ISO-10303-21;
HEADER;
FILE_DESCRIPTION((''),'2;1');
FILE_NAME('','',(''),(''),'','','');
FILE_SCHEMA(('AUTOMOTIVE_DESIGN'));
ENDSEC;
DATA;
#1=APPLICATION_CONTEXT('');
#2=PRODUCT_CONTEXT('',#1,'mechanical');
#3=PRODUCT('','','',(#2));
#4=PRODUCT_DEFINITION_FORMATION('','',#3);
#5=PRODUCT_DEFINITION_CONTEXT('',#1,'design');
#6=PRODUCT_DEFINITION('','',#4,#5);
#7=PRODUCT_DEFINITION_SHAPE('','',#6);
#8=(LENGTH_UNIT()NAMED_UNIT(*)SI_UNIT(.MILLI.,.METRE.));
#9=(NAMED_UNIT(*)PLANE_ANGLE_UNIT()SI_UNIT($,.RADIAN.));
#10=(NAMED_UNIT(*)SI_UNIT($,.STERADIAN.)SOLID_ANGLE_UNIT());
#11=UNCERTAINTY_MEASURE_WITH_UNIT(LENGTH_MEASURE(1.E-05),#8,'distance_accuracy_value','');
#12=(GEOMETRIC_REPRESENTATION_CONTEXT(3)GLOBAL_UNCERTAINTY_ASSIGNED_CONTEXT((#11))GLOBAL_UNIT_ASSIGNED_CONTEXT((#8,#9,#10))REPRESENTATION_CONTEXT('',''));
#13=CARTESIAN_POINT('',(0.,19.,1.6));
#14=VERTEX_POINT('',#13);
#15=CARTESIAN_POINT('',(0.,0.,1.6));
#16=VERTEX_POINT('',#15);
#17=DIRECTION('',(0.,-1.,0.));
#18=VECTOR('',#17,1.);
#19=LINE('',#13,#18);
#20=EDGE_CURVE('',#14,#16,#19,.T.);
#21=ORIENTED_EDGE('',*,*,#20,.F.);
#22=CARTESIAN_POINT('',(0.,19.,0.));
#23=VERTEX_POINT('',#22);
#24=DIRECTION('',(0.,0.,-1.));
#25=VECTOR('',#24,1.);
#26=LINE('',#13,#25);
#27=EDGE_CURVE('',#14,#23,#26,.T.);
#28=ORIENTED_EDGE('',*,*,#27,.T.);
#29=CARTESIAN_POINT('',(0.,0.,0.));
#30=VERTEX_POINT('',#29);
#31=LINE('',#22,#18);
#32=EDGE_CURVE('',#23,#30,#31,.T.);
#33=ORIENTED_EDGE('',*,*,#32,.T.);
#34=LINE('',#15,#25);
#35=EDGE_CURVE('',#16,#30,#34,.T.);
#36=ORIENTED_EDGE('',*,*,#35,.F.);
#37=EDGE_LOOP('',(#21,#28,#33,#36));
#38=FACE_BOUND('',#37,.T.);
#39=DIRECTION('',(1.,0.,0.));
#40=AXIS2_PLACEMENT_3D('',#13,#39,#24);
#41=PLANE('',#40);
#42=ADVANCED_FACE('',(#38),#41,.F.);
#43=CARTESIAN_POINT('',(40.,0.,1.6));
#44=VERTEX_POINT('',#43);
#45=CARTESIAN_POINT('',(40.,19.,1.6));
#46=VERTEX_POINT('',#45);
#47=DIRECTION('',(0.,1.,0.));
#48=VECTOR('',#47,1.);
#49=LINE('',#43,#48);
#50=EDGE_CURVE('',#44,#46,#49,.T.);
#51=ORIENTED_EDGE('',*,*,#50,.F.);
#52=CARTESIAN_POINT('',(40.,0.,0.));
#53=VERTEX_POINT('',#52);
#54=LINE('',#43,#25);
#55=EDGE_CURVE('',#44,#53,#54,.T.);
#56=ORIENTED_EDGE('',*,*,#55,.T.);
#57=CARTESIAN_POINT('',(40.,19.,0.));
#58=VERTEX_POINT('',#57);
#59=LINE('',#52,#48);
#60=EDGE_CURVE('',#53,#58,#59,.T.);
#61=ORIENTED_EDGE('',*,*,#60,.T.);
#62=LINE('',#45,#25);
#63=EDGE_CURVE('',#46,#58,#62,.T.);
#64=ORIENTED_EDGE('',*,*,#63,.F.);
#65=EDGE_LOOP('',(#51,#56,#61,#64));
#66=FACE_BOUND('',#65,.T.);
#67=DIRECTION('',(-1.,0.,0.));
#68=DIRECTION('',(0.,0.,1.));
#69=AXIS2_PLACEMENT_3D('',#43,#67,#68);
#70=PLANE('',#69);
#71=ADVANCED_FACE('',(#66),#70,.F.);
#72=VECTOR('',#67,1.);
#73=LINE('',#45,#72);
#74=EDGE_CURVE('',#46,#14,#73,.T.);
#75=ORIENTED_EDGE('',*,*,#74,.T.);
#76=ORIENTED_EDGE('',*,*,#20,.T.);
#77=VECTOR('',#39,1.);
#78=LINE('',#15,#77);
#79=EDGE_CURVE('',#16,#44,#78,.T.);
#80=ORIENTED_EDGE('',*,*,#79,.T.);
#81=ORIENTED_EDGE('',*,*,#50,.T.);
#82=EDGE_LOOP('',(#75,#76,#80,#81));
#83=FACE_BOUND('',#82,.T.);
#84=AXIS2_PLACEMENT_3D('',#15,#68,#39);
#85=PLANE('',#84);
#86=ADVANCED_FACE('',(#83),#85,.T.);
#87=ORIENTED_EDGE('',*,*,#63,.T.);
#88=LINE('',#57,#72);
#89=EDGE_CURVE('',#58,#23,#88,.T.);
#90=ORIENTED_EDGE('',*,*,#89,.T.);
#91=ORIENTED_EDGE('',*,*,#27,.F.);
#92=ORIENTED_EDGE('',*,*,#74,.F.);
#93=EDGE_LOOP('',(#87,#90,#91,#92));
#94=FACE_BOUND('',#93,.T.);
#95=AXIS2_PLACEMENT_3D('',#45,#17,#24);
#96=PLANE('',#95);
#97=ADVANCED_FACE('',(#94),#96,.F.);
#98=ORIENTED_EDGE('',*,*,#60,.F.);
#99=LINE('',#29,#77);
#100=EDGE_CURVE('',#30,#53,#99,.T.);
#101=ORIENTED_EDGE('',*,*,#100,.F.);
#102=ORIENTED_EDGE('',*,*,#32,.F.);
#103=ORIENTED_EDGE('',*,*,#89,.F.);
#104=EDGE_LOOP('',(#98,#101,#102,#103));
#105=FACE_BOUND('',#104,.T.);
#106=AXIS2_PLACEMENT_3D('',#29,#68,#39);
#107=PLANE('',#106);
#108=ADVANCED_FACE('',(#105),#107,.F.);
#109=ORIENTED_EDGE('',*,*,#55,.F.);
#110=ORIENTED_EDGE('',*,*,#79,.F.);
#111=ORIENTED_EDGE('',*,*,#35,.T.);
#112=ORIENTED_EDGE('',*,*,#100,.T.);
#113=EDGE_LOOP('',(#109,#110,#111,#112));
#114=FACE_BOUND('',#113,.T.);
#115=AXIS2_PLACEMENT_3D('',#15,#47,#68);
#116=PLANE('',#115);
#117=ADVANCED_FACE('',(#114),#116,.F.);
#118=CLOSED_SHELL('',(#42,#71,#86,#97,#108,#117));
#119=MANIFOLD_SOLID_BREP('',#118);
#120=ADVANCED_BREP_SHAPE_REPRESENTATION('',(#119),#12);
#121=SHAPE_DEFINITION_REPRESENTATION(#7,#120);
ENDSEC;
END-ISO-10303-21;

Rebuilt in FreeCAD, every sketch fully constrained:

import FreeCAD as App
import Part
import Sketcher

V = App.Vector
Q = App.Units.Quantity

doc = App.newDocument("Part")
body = doc.addObject("PartDesign::Body", "Body")

# Sketch on XY plane
sketch1 = doc.addObject("Sketcher::SketchObject", "Sketch")
body.addObject(sketch1)
sketch1.AttachmentSupport = (doc.XY_Plane, [""])
sketch1.MapMode = "FlatFace"
sketch1.addGeometry(Part.LineSegment(V(0, 19, 0), V(0, 0, 0)), False)
sketch1.addGeometry(Part.LineSegment(V(0, 0, 0), V(40, 0, 0)), False)
sketch1.addGeometry(Part.LineSegment(V(40, 0, 0), V(40, 19, 0)), False)
sketch1.addGeometry(Part.LineSegment(V(40, 19, 0), V(0, 19, 0)), False)
sketch1.addConstraint(Sketcher.Constraint("Coincident", 0, 2, 1, 1))
sketch1.addConstraint(Sketcher.Constraint("Coincident", 1, 2, 2, 1))
sketch1.addConstraint(Sketcher.Constraint("Coincident", 2, 2, 3, 1))
sketch1.addConstraint(Sketcher.Constraint("Coincident", 3, 2, 0, 1))
sketch1.addConstraint(Sketcher.Constraint("Vertical", 0))
sketch1.addConstraint(Sketcher.Constraint("Horizontal", 1))
sketch1.addConstraint(Sketcher.Constraint("Vertical", 2))
sketch1.addConstraint(Sketcher.Constraint("Horizontal", 3))
sketch1.addConstraint(Sketcher.Constraint("Coincident", 0, 2, -1, 1))
sketch1.addConstraint(Sketcher.Constraint("DistanceX", 1, 1, 1, 2, Q("40 mm")))
sketch1.addConstraint(Sketcher.Constraint("DistanceY", 0, 2, 0, 1, Q("19 mm")))
pad1 = doc.addObject("PartDesign::Pad", "Pad")
body.addObject(pad1)
pad1.Profile = sketch1
pad1.Length = 1.6

doc.recompute()
